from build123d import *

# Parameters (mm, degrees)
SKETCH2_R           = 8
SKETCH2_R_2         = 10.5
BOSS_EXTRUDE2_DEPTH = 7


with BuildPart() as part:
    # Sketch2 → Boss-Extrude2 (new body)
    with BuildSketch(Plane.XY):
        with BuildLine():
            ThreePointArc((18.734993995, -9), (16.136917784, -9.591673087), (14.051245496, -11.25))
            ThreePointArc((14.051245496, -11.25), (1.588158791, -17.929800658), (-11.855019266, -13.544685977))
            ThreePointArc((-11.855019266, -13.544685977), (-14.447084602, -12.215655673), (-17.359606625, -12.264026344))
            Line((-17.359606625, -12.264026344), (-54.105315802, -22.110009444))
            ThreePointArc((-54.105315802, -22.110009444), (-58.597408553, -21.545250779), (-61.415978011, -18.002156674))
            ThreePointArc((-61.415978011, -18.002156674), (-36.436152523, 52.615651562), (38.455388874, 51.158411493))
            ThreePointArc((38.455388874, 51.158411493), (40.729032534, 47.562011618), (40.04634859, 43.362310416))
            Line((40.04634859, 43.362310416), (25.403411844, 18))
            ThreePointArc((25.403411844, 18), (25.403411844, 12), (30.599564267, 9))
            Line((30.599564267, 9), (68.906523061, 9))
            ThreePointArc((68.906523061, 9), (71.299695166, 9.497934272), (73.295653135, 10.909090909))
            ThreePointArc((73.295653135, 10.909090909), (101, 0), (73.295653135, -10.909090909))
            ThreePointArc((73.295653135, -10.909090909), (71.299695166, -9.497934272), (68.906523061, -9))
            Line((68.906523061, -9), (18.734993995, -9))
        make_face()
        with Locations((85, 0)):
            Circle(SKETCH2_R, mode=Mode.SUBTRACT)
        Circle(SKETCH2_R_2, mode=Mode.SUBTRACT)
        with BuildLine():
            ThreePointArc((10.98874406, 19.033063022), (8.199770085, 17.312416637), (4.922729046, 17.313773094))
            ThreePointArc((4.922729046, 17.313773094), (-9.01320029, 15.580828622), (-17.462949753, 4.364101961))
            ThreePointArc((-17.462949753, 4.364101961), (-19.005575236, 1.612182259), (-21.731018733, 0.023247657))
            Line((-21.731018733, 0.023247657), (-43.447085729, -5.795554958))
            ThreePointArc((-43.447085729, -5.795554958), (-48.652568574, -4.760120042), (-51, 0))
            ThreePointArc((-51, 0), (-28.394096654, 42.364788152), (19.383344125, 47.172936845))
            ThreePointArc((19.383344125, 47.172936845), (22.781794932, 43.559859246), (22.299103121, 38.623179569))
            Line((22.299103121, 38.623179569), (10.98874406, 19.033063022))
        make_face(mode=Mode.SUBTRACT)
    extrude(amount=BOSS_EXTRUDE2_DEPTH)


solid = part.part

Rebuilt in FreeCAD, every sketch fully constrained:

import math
import FreeCAD as App
import Part
import Sketcher

V = App.Vector
Q = App.Units.Quantity

doc = App.newDocument("Part")
body = doc.addObject("PartDesign::Body", "Body")

# Sketch on XY plane
sketch1 = doc.addObject("Sketcher::SketchObject", "Sketch")
body.addObject(sketch1)
sketch1.AttachmentSupport = (doc.XY_Plane, [""])
sketch1.MapMode = "FlatFace"
sketch1.addGeometry(Part.ArcOfCircle(Part.Circle(V(18.7, -15, 0), V(0, 0, 1), 6), math.radians(90), math.radians(141)), False)
sketch1.addGeometry(Part.LineSegment(V(18.7, -9, 0), V(68.9, -9, 0)), False)
sketch1.addGeometry(Part.ArcOfCircle(Part.Circle(V(68.9, -15, 0), V(0, 0, 1), 6), math.radians(43), math.radians(90)), False)
sketch1.addGeometry(Part.ArcOfCircle(Part.Circle(V(85, 0, 0), V(0, 0, 1), 16), math.radians(-137), math.radians(137)), False)
sketch1.addGeometry(Part.ArcOfCircle(Part.Circle(V(68.9, 15, 0), V(0, 0, 1), 6), math.radians(-90), math.radians(-43)), False)
sketch1.addGeometry(Part.LineSegment(V(68.9, 9, 0), V(30.6, 9, 0)), False)
sketch1.addGeometry(Part.ArcOfCircle(Part.Circle(V(30.6, 15, 0), V(0, 0, 1), 6), math.radians(150), math.radians(270)), False)
sketch1.addGeometry(Part.LineSegment(V(25.4, 18, 0), V(40, 43.4, 0)), False)
sketch1.addGeometry(Part.ArcOfCircle(Part.Circle(V(34.9, 46.4, 0), V(0, 0, 1), 6), math.radians(-30), math.radians(53)), False)
sketch1.addGeometry(Part.ArcOfCircle(Part.Circle(V(0, 0, 0), V(0, 0, 1), 64), math.radians(53), math.radians(196)), False)
sketch1.addGeometry(Part.ArcOfCircle(Part.Circle(V(-55.7, -16.3, 0), V(0, 0, 1), 6), math.radians(-164), math.radians(-75)), False)
sketch1.addGeometry(Part.LineSegment(V(-54.1, -22.1, 0), V(-17.4, -12.3, 0)), False)
sketch1.addGeometry(Part.ArcOfCircle(Part.Circle(V(-15.8, -18.1, 0), V(0, 0, 1), 6), math.radians(49), math.radians(105)), False)
sketch1.addGeometry(Part.ArcOfCircle(Part.Circle(V(0, 0, 0), V(0, 0, 1), 18), math.radians(-131), math.radians(-39)), False)
sketch1.addGeometry(Part.Circle(V(85, 0, 0), V(0, 0, 1), 8), False)
sketch1.addGeometry(Part.Circle(V(0, 0, 0), V(0, 0, 1), 10.5), False)
sketch1.addGeometry(Part.ArcOfCircle(Part.Circle(V(6.6, 23.1, 0), V(0, 0, 1), 6), math.radians(-106), math.radians(-42)), False)
sketch1.addGeometry(Part.ArcOfCircle(Part.Circle(V(0, 0, 0), V(0, 0, 1), 18), math.radians(74), math.radians(166)), False)
sketch1.addGeometry(Part.ArcOfCircle(Part.Circle(V(-23.3, 5.8, 0), V(0, 0, 1), 6), math.radians(-75), math.radians(-14)), False)
sketch1.addGeometry(Part.LineSegment(V(-21.7, 0, 0), V(-43.4, -5.8, 0)), False)
sketch1.addGeometry(Part.ArcOfCircle(Part.Circle(V(-45, 0, 0), V(0, 0, 1), 6), math.radians(180), math.radians(285)), False)
sketch1.addGeometry(Part.ArcOfCircle(Part.Circle(V(0, 0, 0), V(0, 0, 1), 51), math.radians(68), math.radians(180)), False)
sketch1.addGeometry(Part.ArcOfCircle(Part.Circle(V(17.1, 41.6, 0), V(0, 0, 1), 6), math.radians(-30), math.radians(68)), False)
sketch1.addGeometry(Part.LineSegment(V(22.3, 38.6, 0), V(11, 19, 0)), False)
sketch1.addConstraint(Sketcher.Constraint("Tangent", 0, 1, 1, 1))
sketch1.addConstraint(Sketcher.Constraint("Tangent", 1, 2, 2, 2))
sketch1.addConstraint(Sketcher.Constraint("Tangent", 2, 1, 3, 1))
sketch1.addConstraint(Sketcher.Constraint("Tangent", 3, 2, 4, 2))
sketch1.addConstraint(Sketcher.Constraint("Tangent", 4, 1, 5, 1))
sketch1.addConstraint(Sketcher.Constraint("Tangent", 5, 2, 6, 2))
sketch1.addConstraint(Sketcher.Constraint("Tangent", 6, 1, 7, 1))
sketch1.addConstraint(Sketcher.Constraint("Tangent", 7, 2, 8, 1))
sketch1.addConstraint(Sketcher.Constraint("Tangent", 8, 2, 9, 1))
sketch1.addConstraint(Sketcher.Constraint("Tangent", 9, 2, 10, 1))
sketch1.addConstraint(Sketcher.Constraint("Tangent", 10, 2, 11, 1))
sketch1.addConstraint(Sketcher.Constraint("Tangent", 11, 2, 12, 2))
sketch1.addConstraint(Sketcher.Constraint("Tangent", 12, 1, 13, 1))
sketch1.addConstraint(Sketcher.Constraint("Tangent", 13, 2, 0, 2))
sketch1.addConstraint(Sketcher.Constraint("Tangent", 16, 1, 17, 1))
sketch1.addConstraint(Sketcher.Constraint("Tangent", 17, 2, 18, 2))
sketch1.addConstraint(Sketcher.Constraint("Tangent", 18, 1, 19, 1))
sketch1.addConstraint(Sketcher.Constraint("Tangent", 19, 2, 20, 2))
sketch1.addConstraint(Sketcher.Constraint("Tangent", 20, 1, 21, 2))
sketch1.addConstraint(Sketcher.Constraint("Tangent", 21, 1, 22, 2))
sketch1.addConstraint(Sketcher.Constraint("Tangent", 22, 1, 23, 1))
sketch1.addConstraint(Sketcher.Constraint("Coincident", 23, 2, 16, 2))
sketch1.addConstraint(Sketcher.Constraint("Horizontal", 1))
sketch1.addConstraint(Sketcher.Constraint("Horizontal", 5))
sketch1.addConstraint(Sketcher.Constraint("Coincident", 9, 3, -1, 1))
sketch1.addConstraint(Sketcher.Constraint("Coincident", 13, 3, -1, 1))
sketch1.addConstraint(Sketcher.Constraint("Coincident", 15, 3, -1, 1))
sketch1.addConstraint(Sketcher.Constraint("Coincident", 17, 3, -1, 1))
sketch1.addConstraint(Sketcher.Constraint("Coincident", 21, 3, -1, 1))
sketch1.addConstraint(Sketcher.Constraint("Coincident", 14, 3, 3, 3))
sketch1.addConstraint(Sketcher.Constraint("Equal", 0, 2))
sketch1.addConstraint(Sketcher.Constraint("Equal", 2, 4))
sketch1.addConstraint(Sketcher.Constraint("Equal", 4, 6))
sketch1.addConstraint(Sketcher.Constraint("Equal", 6, 8))
sketch1.addConstraint(Sketcher.Constraint("Equal", 8, 10))
sketch1.addConstraint(Sketcher.Constraint("Equal", 10, 12))
sketch1.addConstraint(Sketcher.Constraint("Equal", 12, 16))
sketch1.addConstraint(Sketcher.Constraint("Equal", 13, 17))
sketch1.addConstraint(Sketcher.Constraint("Equal", 16, 18))
sketch1.addConstraint(Sketcher.Constraint("Equal", 18, 20))
sketch1.addConstraint(Sketcher.Constraint("Equal", 20, 22))
sketch1.addConstraint(Sketcher.Constraint("Symmetric", 2, 3, 4, 3, -1))
sketch1.addConstraint(Sketcher.Constraint("PointOnObject", 20, 3, -1))
sketch1.addConstraint(Sketcher.Constraint("Parallel", 11, 19))
sketch1.addConstraint(Sketcher.Constraint("Parallel", 7, 23))
sketch1.addConstraint(Sketcher.Constraint("Diameter", 14, Q("16 mm")))
sketch1.addConstraint(Sketcher.Constraint("Diameter", 15, Q("21 mm")))
sketch1.addConstraint(Sketcher.Constraint("Radius", 0, Q("6 mm")))
sketch1.addConstraint(Sketcher.Constraint("Radius", 3, Q("16 mm")))
sketch1.addConstraint(Sketcher.Constraint("Radius", 9, Q("64 mm")))
sketch1.addConstraint(Sketcher.Constraint("Radius", 13, Q("18 mm")))
sketch1.addConstraint(Sketcher.Constraint("Radius", 21, Q("51 mm")))
sketch1.addConstraint(Sketcher.Constraint("Angle", 7, Q("60 deg")))
sketch1.addConstraint(Sketcher.Constraint("Angle", 11, Q("15 deg")))
sketch1.addConstraint(Sketcher.Constraint("DistanceY", 0, 3, -1, 1, Q("15 mm")))
sketch1.addConstraint(Sketcher.Constraint("DistanceX", -1, 1, 3, 3, Q("85 mm")))
sketch1.addConstraint(Sketcher.Constraint("DistanceX", 18, 1, 12, 1, Q("9.875999 mm")))
sketch1.addConstraint(Sketcher.Constraint("DistanceX", 5, 2, 5, 1, Q("38.306959 mm")))
sketch1.addConstraint(Sketcher.Constraint("Distance", 23, Q("22.620718 mm")))
sketch1.addConstraint(Sketcher.Constraint("DistanceX", -1, 1, 16, 3, Q("6.563639 mm")))
pad1 = doc.addObject("PartDesign::Pad", "Pad")
body.addObject(pad1)
pad1.Profile = sketch1
pad1.Length = 7

doc.recompute()
